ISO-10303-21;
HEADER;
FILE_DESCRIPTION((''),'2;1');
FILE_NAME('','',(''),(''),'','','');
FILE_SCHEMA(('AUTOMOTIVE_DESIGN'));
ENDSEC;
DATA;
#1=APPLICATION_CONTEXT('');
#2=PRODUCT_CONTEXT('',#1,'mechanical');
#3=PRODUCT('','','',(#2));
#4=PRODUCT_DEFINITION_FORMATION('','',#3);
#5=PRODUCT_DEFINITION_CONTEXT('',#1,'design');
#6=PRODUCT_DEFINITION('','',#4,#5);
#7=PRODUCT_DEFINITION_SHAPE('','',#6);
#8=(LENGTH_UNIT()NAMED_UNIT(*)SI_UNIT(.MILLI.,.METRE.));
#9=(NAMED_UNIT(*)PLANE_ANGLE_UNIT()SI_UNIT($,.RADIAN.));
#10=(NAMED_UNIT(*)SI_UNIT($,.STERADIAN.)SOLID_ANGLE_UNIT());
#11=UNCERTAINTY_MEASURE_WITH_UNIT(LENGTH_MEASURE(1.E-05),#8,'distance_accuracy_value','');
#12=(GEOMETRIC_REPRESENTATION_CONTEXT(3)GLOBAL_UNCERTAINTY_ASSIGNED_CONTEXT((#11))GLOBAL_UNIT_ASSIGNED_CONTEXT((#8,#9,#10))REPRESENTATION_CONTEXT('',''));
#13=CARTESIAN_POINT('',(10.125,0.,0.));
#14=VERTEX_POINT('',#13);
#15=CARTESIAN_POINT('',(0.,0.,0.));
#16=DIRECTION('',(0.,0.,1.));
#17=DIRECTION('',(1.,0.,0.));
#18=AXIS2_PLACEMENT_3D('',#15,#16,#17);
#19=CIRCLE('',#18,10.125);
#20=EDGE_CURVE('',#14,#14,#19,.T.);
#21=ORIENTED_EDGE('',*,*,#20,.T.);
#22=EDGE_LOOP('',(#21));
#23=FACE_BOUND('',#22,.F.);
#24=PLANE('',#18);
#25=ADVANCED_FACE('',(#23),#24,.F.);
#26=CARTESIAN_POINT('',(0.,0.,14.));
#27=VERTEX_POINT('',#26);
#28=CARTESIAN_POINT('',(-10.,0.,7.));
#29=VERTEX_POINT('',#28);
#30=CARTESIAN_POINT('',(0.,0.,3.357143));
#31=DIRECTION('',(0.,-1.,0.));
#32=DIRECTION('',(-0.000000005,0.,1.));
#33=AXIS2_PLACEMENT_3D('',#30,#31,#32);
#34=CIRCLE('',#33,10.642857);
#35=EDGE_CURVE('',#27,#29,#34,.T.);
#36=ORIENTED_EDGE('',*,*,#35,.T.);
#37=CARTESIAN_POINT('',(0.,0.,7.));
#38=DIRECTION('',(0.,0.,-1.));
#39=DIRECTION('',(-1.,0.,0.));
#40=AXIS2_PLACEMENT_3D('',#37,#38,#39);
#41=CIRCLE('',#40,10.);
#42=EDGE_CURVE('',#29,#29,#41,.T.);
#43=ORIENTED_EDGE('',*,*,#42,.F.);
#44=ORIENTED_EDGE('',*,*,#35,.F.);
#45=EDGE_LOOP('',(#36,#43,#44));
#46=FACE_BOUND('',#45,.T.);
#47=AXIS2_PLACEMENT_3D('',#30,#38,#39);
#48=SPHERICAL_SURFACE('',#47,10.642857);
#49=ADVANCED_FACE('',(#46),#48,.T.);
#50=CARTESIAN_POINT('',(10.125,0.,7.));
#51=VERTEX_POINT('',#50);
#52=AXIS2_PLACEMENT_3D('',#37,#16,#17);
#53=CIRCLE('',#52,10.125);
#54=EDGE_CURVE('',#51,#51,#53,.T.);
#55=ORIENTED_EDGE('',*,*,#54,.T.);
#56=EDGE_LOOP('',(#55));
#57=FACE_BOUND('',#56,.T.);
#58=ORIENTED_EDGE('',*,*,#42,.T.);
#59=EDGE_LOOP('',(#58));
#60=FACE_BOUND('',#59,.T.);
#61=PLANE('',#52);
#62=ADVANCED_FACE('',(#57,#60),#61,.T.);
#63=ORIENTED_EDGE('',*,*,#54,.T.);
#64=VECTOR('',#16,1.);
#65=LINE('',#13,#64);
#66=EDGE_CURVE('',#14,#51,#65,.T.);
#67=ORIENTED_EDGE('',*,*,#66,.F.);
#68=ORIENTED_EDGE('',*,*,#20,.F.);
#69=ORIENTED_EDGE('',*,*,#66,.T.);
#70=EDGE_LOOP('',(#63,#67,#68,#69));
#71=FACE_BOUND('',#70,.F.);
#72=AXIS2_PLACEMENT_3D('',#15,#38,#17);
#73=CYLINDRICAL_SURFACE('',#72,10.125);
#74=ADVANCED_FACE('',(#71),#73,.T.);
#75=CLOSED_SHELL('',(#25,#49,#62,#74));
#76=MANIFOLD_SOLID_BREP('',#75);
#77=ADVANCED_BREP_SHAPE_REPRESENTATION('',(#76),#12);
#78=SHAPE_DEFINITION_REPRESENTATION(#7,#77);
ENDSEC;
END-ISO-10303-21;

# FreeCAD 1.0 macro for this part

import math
import FreeCAD as App
import Part
import Sketcher
from FreeCAD import Vector

doc = App.newDocument("Part")
body = doc.addObject("PartDesign::Body", "Body")

sketch1 = body.newObject("Sketcher::SketchObject", "Sketch")
sketch1.AttachmentSupport = (doc.getObject("XY_Plane"), [""])
sketch1.MapMode = "FlatFace"
sketch1.addGeometry(Part.Circle(Vector(0, 0, 0), Vector(0, 0, 1), 10), False)
sketch1.addConstraint(Sketcher.Constraint("Coincident", 0, 3, -1, 1))
sketch1.addConstraint(Sketcher.Constraint("Diameter", 0, 20.25))
pad1 = body.newObject("PartDesign::Pad", "Pad")
pad1.Profile = sketch1
pad1.Length = 7

sketch2 = body.newObject("Sketcher::SketchObject", "Sketch001")
sketch2.AttachmentSupport = (doc.getObject("XZ_Plane"), [""])
sketch2.MapMode = "FlatFace"
sketch2.addGeometry(Part.LineSegment(Vector(0, 7, 0), Vector(0, 14, 0)), False)
sketch2.addGeometry(Part.ArcOfCircle(Part.Circle(Vector(0, 3, 0), Vector(0, 0, 1), 11), math.radians(90), math.radians(160)), False)
sketch2.addGeometry(Part.LineSegment(Vector(-10, 7, 0), Vector(0, 7, 0)), False)
sketch2.addConstraint(Sketcher.Constraint("Coincident", 0, 2, 1, 1))
sketch2.addConstraint(Sketcher.Constraint("Coincident", 1, 2, 2, 1))
sketch2.addConstraint(Sketcher.Constraint("Coincident", 2, 2, 0, 1))
sketch2.addConstraint(Sketcher.Constraint("Vertical", 0))
sketch2.addConstraint(Sketcher.Constraint("Horizontal", 2))
sketch2.addConstraint(Sketcher.Constraint("PointOnObject", 1, 3, -2))
sketch2.addConstraint(Sketcher.Constraint("PointOnObject", 0, 2, -2))
sketch2.addConstraint(Sketcher.Constraint("DistanceX", 2, 1, 2, 2, 10.0))
sketch2.addConstraint(Sketcher.Constraint("DistanceY", 0, 1, 0, 2, 7.0))
sketch2.addConstraint(Sketcher.Constraint("DistanceY", -1, 1, 0, 2, 14.0))
revolution = body.newObject("PartDesign::Revolution", "Revolution")
revolution.Profile = sketch2
revolution.ReferenceAxis = (sketch2, ["V_Axis"])
revolution.Angle = 360

doc.recompute()
